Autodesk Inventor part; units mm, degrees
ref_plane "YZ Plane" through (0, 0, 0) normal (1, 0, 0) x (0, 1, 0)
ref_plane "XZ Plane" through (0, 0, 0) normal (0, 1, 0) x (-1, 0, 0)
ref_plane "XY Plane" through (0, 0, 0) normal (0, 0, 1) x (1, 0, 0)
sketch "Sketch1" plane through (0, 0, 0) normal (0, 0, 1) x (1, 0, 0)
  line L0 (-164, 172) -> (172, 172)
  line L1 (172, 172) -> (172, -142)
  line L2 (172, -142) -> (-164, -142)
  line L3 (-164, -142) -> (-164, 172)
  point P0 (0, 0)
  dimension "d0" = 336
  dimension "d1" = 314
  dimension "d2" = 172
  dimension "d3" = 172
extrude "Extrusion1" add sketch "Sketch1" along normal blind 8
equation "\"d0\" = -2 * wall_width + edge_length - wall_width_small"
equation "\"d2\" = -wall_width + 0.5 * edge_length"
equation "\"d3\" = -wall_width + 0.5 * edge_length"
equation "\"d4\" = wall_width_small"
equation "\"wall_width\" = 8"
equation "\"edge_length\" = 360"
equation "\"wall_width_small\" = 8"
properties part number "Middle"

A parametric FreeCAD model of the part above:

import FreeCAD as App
import Part
import Sketcher

V = App.Vector

doc = App.newDocument("Part")
body = doc.addObject("PartDesign::Body", "Body")

sketch1 = body.newObject("Sketcher::SketchObject", "Sketch")
sketch1.AttachmentSupport = (doc.getObject("XY_Plane"), [""])
sketch1.MapMode = "FlatFace"
sketch1.addGeometry([
    Part.LineSegment(V(172, 172, 0), V(-164, 172, 0)),
    Part.LineSegment(V(-164, 172, 0), V(-164, -142, 0)),
    Part.LineSegment(V(-164, -142, 0), V(172, -142, 0)),
    Part.LineSegment(V(172, -142, 0), V(172, 172, 0)),
], False)
sketch1.addConstraint([
    Sketcher.Constraint("Coincident", 0, 2, 1, 1),
    Sketcher.Constraint("Coincident", 1, 2, 2, 1),
    Sketcher.Constraint("Coincident", 2, 2, 3, 1),
    Sketcher.Constraint("Coincident", 3, 2, 0, 1),
    Sketcher.Constraint("Horizontal", 0),
    Sketcher.Constraint("Vertical", 1),
    Sketcher.Constraint("Horizontal", 2),
    Sketcher.Constraint("Vertical", 3),
    Sketcher.Constraint("DistanceX", 0, 2, 0, 1, 336.0),
    Sketcher.Constraint("DistanceY", 1, 2, 1, 1, 314.0),
    Sketcher.Constraint("DistanceY", -1, 1, 0, 2, 172.0),
    Sketcher.Constraint("DistanceX", -1, 1, 2, 2, 172.0),
])
pad1 = body.newObject("PartDesign::Pad", "Pad")
pad1.Profile = sketch1
pad1.Length = 8

doc.recompute()
